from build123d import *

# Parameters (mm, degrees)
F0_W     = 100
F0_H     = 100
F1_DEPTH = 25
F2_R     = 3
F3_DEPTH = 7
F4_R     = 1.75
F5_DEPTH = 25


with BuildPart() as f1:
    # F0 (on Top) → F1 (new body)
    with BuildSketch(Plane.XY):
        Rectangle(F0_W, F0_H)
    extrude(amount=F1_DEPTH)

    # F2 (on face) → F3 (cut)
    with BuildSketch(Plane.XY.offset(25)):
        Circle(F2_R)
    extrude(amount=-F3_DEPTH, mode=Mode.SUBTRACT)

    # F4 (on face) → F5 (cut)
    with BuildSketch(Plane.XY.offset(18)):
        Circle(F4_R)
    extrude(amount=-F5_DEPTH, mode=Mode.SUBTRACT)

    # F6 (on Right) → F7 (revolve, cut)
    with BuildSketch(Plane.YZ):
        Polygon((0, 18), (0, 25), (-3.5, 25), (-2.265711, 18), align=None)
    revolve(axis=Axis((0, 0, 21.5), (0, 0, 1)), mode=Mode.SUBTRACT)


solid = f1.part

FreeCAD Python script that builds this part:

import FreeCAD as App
import Part
import Sketcher
from FreeCAD import Vector
Q = App.Units.Quantity

doc = App.newDocument("Part")
body = doc.addObject("PartDesign::Body", "Body")

# Sketch on XY plane
sketch1 = body.newObject("Sketcher::SketchObject", "Sketch")
sketch1.AttachmentSupport = (doc.getObject("XY_Plane"), [""])
sketch1.MapMode = "FlatFace"
sketch1.addGeometry([
    Part.LineSegment(Vector(-50, 50, 0), Vector(-50, -50, 0)),
    Part.LineSegment(Vector(-50, -50, 0), Vector(50, -50, 0)),
    Part.LineSegment(Vector(50, -50, 0), Vector(50, 50, 0)),
    Part.LineSegment(Vector(50, 50, 0), Vector(-50, 50, 0)),
], False)
sketch1.addConstraint([
    Sketcher.Constraint("Coincident", 0, 2, 1, 1),
    Sketcher.Constraint("Coincident", 1, 2, 2, 1),
    Sketcher.Constraint("Coincident", 2, 2, 3, 1),
    Sketcher.Constraint("Coincident", 3, 2, 0, 1),
    Sketcher.Constraint("Vertical", 0),
    Sketcher.Constraint("Horizontal", 1),
    Sketcher.Constraint("Vertical", 2),
    Sketcher.Constraint("Horizontal", 3),
    Sketcher.Constraint("Symmetric", 0, 2, 2, 2, -1, 1),
    Sketcher.Constraint("Equal", 3, 0),
    Sketcher.Constraint("DistanceX", 1, 1, 1, 2, 100.0),
])
pad1 = body.newObject("PartDesign::Pad", "Pad")
pad1.Profile = sketch1
pad1.Length = 25

# Sketch on XY plane
sketch2 = body.newObject("Sketcher::SketchObject", "Sketch001")
sketch2.AttachmentSupport = (doc.getObject("XY_Plane"), [""])
sketch2.MapMode = "FlatFace"
sketch2.AttachmentOffset = App.Placement(Vector(0, 0, 25), App.Rotation())
sketch2.addGeometry(Part.Circle(Vector(0, 0, 0), Vector(0, 0, 1), 3), False)
sketch2.addConstraint([
    Sketcher.Constraint("Coincident", 0, 3, -1, 1),
    Sketcher.Constraint("Diameter", 0, 6.0),
])
pocket1 = body.newObject("PartDesign::Pocket", "Pocket")
pocket1.Profile = sketch2
pocket1.Length = 7

# Sketch on XY plane
sketch3 = body.newObject("Sketcher::SketchObject", "Sketch002")
sketch3.AttachmentSupport = (doc.getObject("XY_Plane"), [""])
sketch3.MapMode = "FlatFace"
sketch3.AttachmentOffset = App.Placement(Vector(0, 0, 18), App.Rotation())
sketch3.addGeometry(Part.Circle(Vector(0, 0, 0), Vector(0, 0, 1), 1.8), False)
sketch3.addConstraint([
    Sketcher.Constraint("Coincident", 0, 3, -1, 1),
    Sketcher.Constraint("Diameter", 0, 3.5),
])
pocket2 = body.newObject("PartDesign::Pocket", "Pocket001")
pocket2.Profile = sketch3
pocket2.Length = 25

# Sketch on YZ plane
sketch4 = body.newObject("Sketcher::SketchObject", "Sketch003")
sketch4.AttachmentSupport = (doc.getObject("YZ_Plane"), [""])
sketch4.MapMode = "FlatFace"
sketch4.addGeometry([
    Part.LineSegment(Vector(0, 18, 0), Vector(0, 25, 0)),
    Part.LineSegment(Vector(0, 25, 0), Vector(-3.5, 25, 0)),
    Part.LineSegment(Vector(-3.5, 25, 0), Vector(-2.3, 18, 0)),
    Part.LineSegment(Vector(-2.3, 18, 0), Vector(0, 18, 0)),
], False)
sketch4.addConstraint([
    Sketcher.Constraint("Coincident", 0, 2, 1, 1),
    Sketcher.Constraint("Coincident", 1, 2, 2, 1),
    Sketcher.Constraint("Coincident", 2, 2, 3, 1),
    Sketcher.Constraint("Coincident", 3, 2, 0, 1),
    Sketcher.Constraint("Vertical", 0),
    Sketcher.Constraint("Horizontal", 1),
    Sketcher.Constraint("Horizontal", 3),
    Sketcher.Constraint("PointOnObject", 0, 2, -2),
    Sketcher.Constraint("DistanceY", 0, 1, 0, 2, 7.0),
    Sketcher.Constraint("Angle", 2, Q("-79.999999 deg")),
    Sketcher.Constraint("DistanceX", 1, 2, 1, 1, 3.5),
    Sketcher.Constraint("DistanceY", -1, 1, 0, 2, 25.0),
])
groove = body.newObject("PartDesign::Groove", "Groove")
groove.Profile = sketch4
groove.ReferenceAxis = (sketch4, ["V_Axis"])
groove.Angle = 360

doc.recompute()
